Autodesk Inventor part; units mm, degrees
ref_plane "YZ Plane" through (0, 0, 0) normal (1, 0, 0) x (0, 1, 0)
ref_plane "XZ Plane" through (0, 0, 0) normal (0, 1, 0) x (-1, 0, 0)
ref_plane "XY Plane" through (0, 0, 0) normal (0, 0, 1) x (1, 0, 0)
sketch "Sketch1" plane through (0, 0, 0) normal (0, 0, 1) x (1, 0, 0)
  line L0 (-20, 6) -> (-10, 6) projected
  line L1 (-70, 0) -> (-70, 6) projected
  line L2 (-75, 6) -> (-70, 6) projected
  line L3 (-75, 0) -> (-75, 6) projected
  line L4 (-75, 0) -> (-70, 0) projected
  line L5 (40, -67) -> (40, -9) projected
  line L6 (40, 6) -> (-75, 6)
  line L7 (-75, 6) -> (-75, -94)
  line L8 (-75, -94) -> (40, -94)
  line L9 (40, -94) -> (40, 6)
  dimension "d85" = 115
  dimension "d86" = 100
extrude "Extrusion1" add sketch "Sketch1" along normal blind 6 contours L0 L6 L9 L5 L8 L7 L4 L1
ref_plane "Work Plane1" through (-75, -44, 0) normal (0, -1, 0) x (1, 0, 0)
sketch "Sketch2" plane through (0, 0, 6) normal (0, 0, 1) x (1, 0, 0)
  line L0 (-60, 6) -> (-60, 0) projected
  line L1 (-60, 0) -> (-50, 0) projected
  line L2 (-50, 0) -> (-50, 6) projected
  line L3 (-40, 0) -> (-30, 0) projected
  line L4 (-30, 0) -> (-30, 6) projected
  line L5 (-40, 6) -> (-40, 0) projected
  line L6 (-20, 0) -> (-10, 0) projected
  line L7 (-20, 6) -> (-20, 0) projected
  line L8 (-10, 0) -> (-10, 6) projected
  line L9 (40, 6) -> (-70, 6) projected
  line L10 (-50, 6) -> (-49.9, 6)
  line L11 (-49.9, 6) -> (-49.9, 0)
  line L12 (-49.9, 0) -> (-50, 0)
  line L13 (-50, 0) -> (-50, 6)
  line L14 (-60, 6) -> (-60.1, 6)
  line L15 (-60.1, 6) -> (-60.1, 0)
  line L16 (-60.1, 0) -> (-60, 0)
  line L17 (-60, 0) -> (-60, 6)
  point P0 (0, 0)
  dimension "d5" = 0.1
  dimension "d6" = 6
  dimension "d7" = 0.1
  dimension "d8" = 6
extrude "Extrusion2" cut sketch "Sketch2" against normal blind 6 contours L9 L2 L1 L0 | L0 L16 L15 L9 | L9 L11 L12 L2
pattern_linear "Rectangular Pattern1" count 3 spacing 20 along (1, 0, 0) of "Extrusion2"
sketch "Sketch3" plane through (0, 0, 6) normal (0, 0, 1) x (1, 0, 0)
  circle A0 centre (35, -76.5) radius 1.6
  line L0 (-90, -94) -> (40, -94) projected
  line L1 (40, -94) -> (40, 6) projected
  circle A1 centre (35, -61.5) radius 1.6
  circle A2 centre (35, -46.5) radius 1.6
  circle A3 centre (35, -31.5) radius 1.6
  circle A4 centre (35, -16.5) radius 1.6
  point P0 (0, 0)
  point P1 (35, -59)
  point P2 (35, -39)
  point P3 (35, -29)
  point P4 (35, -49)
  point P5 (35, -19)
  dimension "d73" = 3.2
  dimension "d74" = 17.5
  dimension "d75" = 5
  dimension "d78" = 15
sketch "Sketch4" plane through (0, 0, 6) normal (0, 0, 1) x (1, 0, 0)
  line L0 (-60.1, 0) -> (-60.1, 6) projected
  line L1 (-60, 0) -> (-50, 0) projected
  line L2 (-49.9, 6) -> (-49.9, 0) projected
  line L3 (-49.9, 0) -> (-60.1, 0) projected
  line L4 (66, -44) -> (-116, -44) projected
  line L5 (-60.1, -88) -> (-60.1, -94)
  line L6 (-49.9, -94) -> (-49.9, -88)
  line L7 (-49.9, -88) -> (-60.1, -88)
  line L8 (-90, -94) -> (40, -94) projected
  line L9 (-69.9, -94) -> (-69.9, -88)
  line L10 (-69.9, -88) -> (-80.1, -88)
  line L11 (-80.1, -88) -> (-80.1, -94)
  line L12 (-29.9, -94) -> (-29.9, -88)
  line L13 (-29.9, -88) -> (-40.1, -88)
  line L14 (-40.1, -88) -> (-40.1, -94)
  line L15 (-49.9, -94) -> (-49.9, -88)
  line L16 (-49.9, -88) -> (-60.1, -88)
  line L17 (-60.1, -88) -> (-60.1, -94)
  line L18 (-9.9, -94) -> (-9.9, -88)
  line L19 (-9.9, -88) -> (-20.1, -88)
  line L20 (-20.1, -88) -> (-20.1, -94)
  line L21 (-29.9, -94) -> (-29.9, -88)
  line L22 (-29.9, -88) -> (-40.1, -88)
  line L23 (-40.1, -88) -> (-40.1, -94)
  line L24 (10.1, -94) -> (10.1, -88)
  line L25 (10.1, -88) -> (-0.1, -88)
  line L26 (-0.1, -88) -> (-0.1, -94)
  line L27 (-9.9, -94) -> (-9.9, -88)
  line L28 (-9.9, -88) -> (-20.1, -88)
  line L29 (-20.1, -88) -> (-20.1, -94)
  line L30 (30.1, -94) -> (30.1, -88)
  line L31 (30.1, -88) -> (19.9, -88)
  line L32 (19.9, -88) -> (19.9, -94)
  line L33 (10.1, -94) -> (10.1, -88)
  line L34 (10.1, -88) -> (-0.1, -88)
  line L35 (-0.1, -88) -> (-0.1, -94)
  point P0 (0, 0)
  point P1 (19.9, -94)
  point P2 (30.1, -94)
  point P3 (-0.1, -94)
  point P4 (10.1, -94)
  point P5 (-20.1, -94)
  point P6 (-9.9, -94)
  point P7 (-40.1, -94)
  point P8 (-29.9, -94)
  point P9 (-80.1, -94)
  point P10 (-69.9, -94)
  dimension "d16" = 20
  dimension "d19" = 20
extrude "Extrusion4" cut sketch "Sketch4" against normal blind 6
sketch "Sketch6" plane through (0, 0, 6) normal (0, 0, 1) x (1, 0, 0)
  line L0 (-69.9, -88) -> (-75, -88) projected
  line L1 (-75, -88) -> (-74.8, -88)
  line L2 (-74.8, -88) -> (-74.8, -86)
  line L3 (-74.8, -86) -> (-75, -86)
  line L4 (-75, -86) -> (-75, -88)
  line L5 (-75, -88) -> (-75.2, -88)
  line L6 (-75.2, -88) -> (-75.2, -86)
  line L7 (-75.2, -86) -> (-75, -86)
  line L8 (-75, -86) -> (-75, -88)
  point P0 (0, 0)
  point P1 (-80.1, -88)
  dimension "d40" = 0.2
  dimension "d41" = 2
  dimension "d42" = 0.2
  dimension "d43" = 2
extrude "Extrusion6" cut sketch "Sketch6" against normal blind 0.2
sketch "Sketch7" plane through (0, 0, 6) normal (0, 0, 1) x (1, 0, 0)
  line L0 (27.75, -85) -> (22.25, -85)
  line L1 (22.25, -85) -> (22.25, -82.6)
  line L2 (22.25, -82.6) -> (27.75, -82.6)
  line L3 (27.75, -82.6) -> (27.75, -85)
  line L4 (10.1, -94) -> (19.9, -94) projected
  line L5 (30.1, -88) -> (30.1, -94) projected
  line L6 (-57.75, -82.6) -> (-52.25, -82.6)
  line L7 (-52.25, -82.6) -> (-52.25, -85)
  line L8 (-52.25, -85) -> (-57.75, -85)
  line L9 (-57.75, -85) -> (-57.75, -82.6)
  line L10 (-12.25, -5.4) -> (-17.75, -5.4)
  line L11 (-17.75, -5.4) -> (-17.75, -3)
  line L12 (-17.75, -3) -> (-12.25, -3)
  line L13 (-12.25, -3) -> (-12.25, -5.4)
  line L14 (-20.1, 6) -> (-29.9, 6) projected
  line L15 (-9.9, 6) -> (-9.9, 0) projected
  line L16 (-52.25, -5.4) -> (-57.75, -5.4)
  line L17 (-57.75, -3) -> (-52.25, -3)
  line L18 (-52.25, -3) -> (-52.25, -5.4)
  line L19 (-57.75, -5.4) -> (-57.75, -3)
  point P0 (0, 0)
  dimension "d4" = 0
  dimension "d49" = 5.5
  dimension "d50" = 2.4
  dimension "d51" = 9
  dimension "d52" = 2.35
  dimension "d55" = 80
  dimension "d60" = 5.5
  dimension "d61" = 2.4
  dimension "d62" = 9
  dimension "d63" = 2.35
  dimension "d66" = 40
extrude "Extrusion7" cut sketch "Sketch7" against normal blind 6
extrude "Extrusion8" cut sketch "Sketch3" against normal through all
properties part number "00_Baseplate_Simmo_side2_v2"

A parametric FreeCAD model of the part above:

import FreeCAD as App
import Part
import Sketcher
from FreeCAD import Vector
Q = App.Units.Quantity


def add_polygon(sketch, points):
    """Adds a closed chain of lines whose ends are joined by coincident constraints."""
    first, n = sketch.GeometryCount, len(points)
    for a, b in zip(points, points[1:] + points[:1]):
        sketch.addGeometry(Part.LineSegment(App.Vector(*a, 0), App.Vector(*b, 0)), False)
    for i in range(n):
        sketch.addConstraint(Sketcher.Constraint("Coincident", first + i, 2, first + (i + 1) % n, 1))

doc = App.newDocument("Part")
params = doc.addObject("Spreadsheet::Sheet", "Params")
for row, (alias, value) in enumerate([
    ("sketch1_width", "115 mm"),
    ("sketch1_height", "100 mm"),
    ("sketch1_width2", "110 mm"),
    ("sketch1_height2", "6 mm"),
    ("pad1_length", "6 mm"),
    ("sketch2_height", "6 mm"),
    ("sketch2_width", "10.2 mm"),
    ("pocket1_length", "6 mm"),
    ("linearpattern_pitch", "20 mm"),
    ("sketch3_height", "6 mm"),
    ("sketch3_width", "10.2 mm"),
    ("pocket2_length", "6 mm"),
    ("sketch4_height", "2 mm"),
    ("sketch4_width", "0.4 mm"),
    ("pocket3_length", "0.2 mm"),
    ("sketch5_width", "5.5 mm"),
    ("sketch5_height", "2.4 mm"),
    ("pocket4_length", "6 mm"),
    ("sketch6_diameter", "3.2 mm"),
], start=1):
    params.set(f"A{row}", alias)
    params.set(f"B{row}", "=" + value)
    params.setAlias(f"B{row}", alias)

body = doc.addObject("PartDesign::Body", "Body")

# Sketch on XY plane
sketch1 = body.newObject("Sketcher::SketchObject", "Sketch")
sketch1.AttachmentSupport = (doc.getObject("XY_Plane"), [""])
sketch1.MapMode = "FlatFace"
add_polygon(sketch1, [(40, 6), (-70, 6), (-70, 0), (-75, 0), (-75, -94), (40, -94)])  # lines 0-5
sketch1.addConstraint([
    Sketcher.Constraint("Horizontal", 0),
    Sketcher.Constraint("Vertical", 1),
    Sketcher.Constraint("Horizontal", 2),
    Sketcher.Constraint("Vertical", 3),
    Sketcher.Constraint("Horizontal", 4),
    Sketcher.Constraint("Vertical", 5),
    Sketcher.Constraint("PointOnObject", 1, 2, -1),
    Sketcher.Constraint("DistanceX", 4, 1, 4, 2, Q("115 mm")),
    Sketcher.Constraint("DistanceY", 5, 1, 5, 2, Q("100 mm")),
    Sketcher.Constraint("DistanceX", 0, 2, 0, 1, Q("110 mm")),
    Sketcher.Constraint("DistanceY", 1, 2, 1, 1, Q("6 mm")),
    Sketcher.Constraint("DistanceX", 0, 2, -1, 1, Q("70 mm")),
])
sketch1.setExpression("Constraints[13]", "Params.sketch1_width")
sketch1.setExpression("Constraints[14]", "Params.sketch1_height")
sketch1.setExpression("Constraints[15]", "Params.sketch1_width2")
sketch1.setExpression("Constraints[16]", "Params.sketch1_height2")
pad1 = body.newObject("PartDesign::Pad", "Pad")
pad1.Profile = sketch1
pad1.setExpression("Length", "Params.pad1_length")

# Sketch on XY plane
sketch2 = body.newObject("Sketcher::SketchObject", "Sketch001")
sketch2.AttachmentSupport = (doc.getObject("XY_Plane"), [""])
sketch2.MapMode = "FlatFace"
sketch2.AttachmentOffset = App.Placement(Vector(0, 0, 6), App.Rotation())
add_polygon(sketch2, [(-60, 6), (-60, 0), (-50, 0), (-50, 6)])  # lines 0-3
sketch2.addConstraint([
    Sketcher.Constraint("Vertical", 0),
    Sketcher.Constraint("Horizontal", 1),
    Sketcher.Constraint("Vertical", 2),
    Sketcher.Constraint("Horizontal", 3),
    Sketcher.Constraint("PointOnObject", 0, 2, -1),
    Sketcher.Constraint("DistanceY", 0, 2, 0, 1, Q("6 mm")),
    Sketcher.Constraint("DistanceX", 1, 1, 1, 2, Q("10.2 mm")),
    Sketcher.Constraint("DistanceX", 0, 2, -1, 1, Q("60.1 mm")),
])
sketch2.setExpression("Constraints[9]", "Params.sketch2_height")
sketch2.setExpression("Constraints[10]", "Params.sketch2_width")
pocket1 = body.newObject("PartDesign::Pocket", "Pocket")
pocket1.Profile = sketch2
pocket1.setExpression("Length", "Params.pocket1_length")
doc.recompute()

linearpattern = body.newObject("PartDesign::LinearPattern", "LinearPattern")
linearpattern.Originals = [pocket1]
linearpattern.Direction = (doc.getObject("X_Axis"), [""])
linearpattern.Mode = "offset"
linearpattern.setExpression("Offset", "Params.linearpattern_pitch")
linearpattern.Occurrences = 3
body.Tip = linearpattern

# Sketch on XY plane
sketch3 = body.newObject("Sketcher::SketchObject", "Sketch002")
sketch3.AttachmentSupport = (doc.getObject("XY_Plane"), [""])
sketch3.MapMode = "FlatFace"
sketch3.AttachmentOffset = App.Placement(Vector(0, 0, 6), App.Rotation())
add_polygon(sketch3, [(-50, -88), (-60, -88), (-60, -94), (-50, -94)])  # lines 0-3
add_polygon(sketch3, [(20, -88), (20, -94), (30, -94), (30, -88)])  # lines 4-7
add_polygon(sketch3, [(0, -88), (0, -94), (10, -94), (10, -88)])  # lines 8-11
add_polygon(sketch3, [(-20, -88), (-20, -94), (-10, -94), (-10, -88)])  # lines 12-15
add_polygon(sketch3, [(-40, -88), (-40, -94), (-30, -94), (-30, -88)])  # lines 16-19
add_polygon(sketch3, [(-80, -94), (-70, -94), (-70, -88), (-80, -88)])  # lines 20-23
sketch3.addConstraint([
    Sketcher.Constraint("Horizontal", 0),
    Sketcher.Constraint("Vertical", 1),
    Sketcher.Constraint("Horizontal", 2),
    Sketcher.Constraint("Vertical", 3),
    Sketcher.Constraint("Vertical", 4),
    Sketcher.Constraint("Horizontal", 5),
    Sketcher.Constraint("Vertical", 6),
    Sketcher.Constraint("Horizontal", 7),
    Sketcher.Constraint("Vertical", 8),
    Sketcher.Constraint("Horizontal", 9),
    Sketcher.Constraint("Vertical", 10),
    Sketcher.Constraint("Horizontal", 11),
    Sketcher.Constraint("Vertical", 12),
    Sketcher.Constraint("Horizontal", 13),
    Sketcher.Constraint("Vertical", 14),
    Sketcher.Constraint("Horizontal", 15),
    Sketcher.Constraint("Vertical", 16),
    Sketcher.Constraint("Horizontal", 17),
    Sketcher.Constraint("Vertical", 18),
    Sketcher.Constraint("Horizontal", 19),
    Sketcher.Constraint("Horizontal", 20),
    Sketcher.Constraint("Vertical", 21),
    Sketcher.Constraint("Horizontal", 22),
    Sketcher.Constraint("Vertical", 23),
    Sketcher.Constraint("Horizontal", 2, 2, 4, 2),
    Sketcher.Constraint("Horizontal", 3, 2, 6, 2),
    Sketcher.Constraint("Horizontal", 5, 2, 8, 2),
    Sketcher.Constraint("Horizontal", 7, 2, 10, 2),
    Sketcher.Constraint("Horizontal", 9, 2, 12, 2),
    Sketcher.Constraint("Horizontal", 11, 2, 14, 2),
    Sketcher.Constraint("Horizontal", 13, 2, 16, 2),
    Sketcher.Constraint("Horizontal", 15, 2, 18, 2),
    Sketcher.Constraint("Horizontal", 17, 2, 20, 2),
    Sketcher.Constraint("Horizontal", 19, 2, 21, 2),
    Sketcher.Constraint("Equal", 2, 5),
    Sketcher.Constraint("Equal", 7, 9),
    Sketcher.Constraint("Equal", 11, 13),
    Sketcher.Constraint("Equal", 15, 17),
    Sketcher.Constraint("Equal", 19, 20),
    Sketcher.Constraint("DistanceX", 8, 2, 4, 2, Q("20 mm")),
    Sketcher.Constraint("DistanceX", 12, 2, 8, 2, Q("20 mm")),
    Sketcher.Constraint("DistanceX", 1, 2, 16, 2, Q("20 mm")),
    Sketcher.Constraint("DistanceX", 16, 2, 12, 2, Q("20 mm")),
    Sketcher.Constraint("DistanceX", 20, 2, 2, 2, Q("20 mm")),
    Sketcher.Constraint("DistanceY", 1, 2, 1, 1, Q("6 mm")),
    Sketcher.Constraint("DistanceX", 0, 2, 0, 1, Q("10.2 mm")),
    Sketcher.Constraint("DistanceY", 0, 2, -1, 1, Q("88 mm")),
    Sketcher.Constraint("DistanceX", 0, 2, -1, 1, Q("60.1 mm")),
])
sketch3.setExpression("Constraints[68]", "Params.sketch3_height")
sketch3.setExpression("Constraints[69]", "Params.sketch3_width")
pocket2 = body.newObject("PartDesign::Pocket", "Pocket001")
pocket2.Profile = sketch3
pocket2.setExpression("Length", "Params.pocket2_length")

# Sketch on XY plane
sketch4 = body.newObject("Sketcher::SketchObject", "Sketch003")
sketch4.AttachmentSupport = (doc.getObject("XY_Plane"), [""])
sketch4.MapMode = "FlatFace"
sketch4.AttachmentOffset = App.Placement(Vector(0, 0, 6), App.Rotation())
add_polygon(sketch4, [(-74.8, -88), (-74.8, -86), (-75.2, -86), (-75.2, -88)])  # lines 0-3
sketch4.addConstraint([
    Sketcher.Constraint("Vertical", 0),
    Sketcher.Constraint("Horizontal", 1),
    Sketcher.Constraint("Vertical", 2),
    Sketcher.Constraint("Horizontal", 3),
    Sketcher.Constraint("DistanceY", 0, 1, 0, 2, Q("2 mm")),
    Sketcher.Constraint("DistanceX", 1, 2, 1, 1, Q("0.4 mm")),
    Sketcher.Constraint("DistanceY", 0, 2, -1, 1, Q("86 mm")),
    Sketcher.Constraint("DistanceX", 0, 2, -1, 1, Q("74.8 mm")),
])
sketch4.setExpression("Constraints[8]", "Params.sketch4_height")
sketch4.setExpression("Constraints[9]", "Params.sketch4_width")
pocket3 = body.newObject("PartDesign::Pocket", "Pocket002")
pocket3.Profile = sketch4
pocket3.setExpression("Length", "Params.pocket3_length")

# Sketch on XY plane
sketch5 = body.newObject("Sketcher::SketchObject", "Sketch004")
sketch5.AttachmentSupport = (doc.getObject("XY_Plane"), [""])
sketch5.MapMode = "FlatFace"
sketch5.AttachmentOffset = App.Placement(Vector(0, 0, 6), App.Rotation())
add_polygon(sketch5, [(22.2, -85), (27.8, -85), (27.8, -82.6), (22.2, -82.6)])  # lines 0-3
add_polygon(sketch5, [(-52.2, -82.6), (-57.8, -82.6), (-57.8, -85), (-52.2, -85)])  # lines 4-7
add_polygon(sketch5, [(-17.8, -5.4), (-12.2, -5.4), (-12.2, -3), (-17.8, -3)])  # lines 8-11
add_polygon(sketch5, [(-57.8, -5.4), (-52.2, -5.4), (-52.2, -3), (-57.8, -3)])  # lines 12-15
sketch5.addConstraint([
    Sketcher.Constraint("Horizontal", 0),
    Sketcher.Constraint("Vertical", 1),
    Sketcher.Constraint("Horizontal", 2),
    Sketcher.Constraint("Vertical", 3),
    Sketcher.Constraint("Horizontal", 4),
    Sketcher.Constraint("Vertical", 5),
    Sketcher.Constraint("Horizontal", 6),
    Sketcher.Constraint("Vertical", 7),
    Sketcher.Constraint("Horizontal", 8),
    Sketcher.Constraint("Vertical", 9),
    Sketcher.Constraint("Horizontal", 10),
    Sketcher.Constraint("Vertical", 11),
    Sketcher.Constraint("Horizontal", 12),
    Sketcher.Constraint("Vertical", 13),
    Sketcher.Constraint("Horizontal", 14),
    Sketcher.Constraint("Vertical", 15),
    Sketcher.Constraint("Horizontal", 2, 2, 4, 2),
    Sketcher.Constraint("Horizontal", 3, 2, 5, 2),
    Sketcher.Constraint("Horizontal", 11, 2, 12, 2),
    Sketcher.Constraint("Horizontal", 10, 2, 13, 2),
    Sketcher.Constraint("Vertical", 7, 2, 12, 2),
    Sketcher.Constraint("Vertical", 5, 2, 14, 2),
    Sketcher.Constraint("Equal", 2, 4),
    Sketcher.Constraint("Equal", 6, 8),
    Sketcher.Constraint("Equal", 7, 9),
    Sketcher.Constraint("DistanceX", 0, 1, 0, 2, Q("5.5 mm")),
    Sketcher.Constraint("DistanceY", 1, 1, 1, 2, Q("2.4 mm")),
    Sketcher.Constraint("DistanceX", 4, 2, 2, 2, Q("80 mm")),
    Sketcher.Constraint("DistanceX", 8, 2, 1, 2, Q("40 mm")),
    Sketcher.Constraint("DistanceY", 0, 2, -1, 1, Q("85 mm")),
    Sketcher.Constraint("DistanceY", 9, 2, -1, 1, Q("3 mm")),
    Sketcher.Constraint("DistanceX", -1, 1, 0, 2, Q("27.75 mm")),
])
sketch5.setExpression("Constraints[41]", "Params.sketch5_width")
sketch5.setExpression("Constraints[42]", "Params.sketch5_height")
pocket4 = body.newObject("PartDesign::Pocket", "Pocket003")
pocket4.Profile = sketch5
pocket4.setExpression("Length", "Params.pocket4_length")

# Sketch on XY plane
sketch6 = body.newObject("Sketcher::SketchObject", "Sketch005")
sketch6.AttachmentSupport = (doc.getObject("XY_Plane"), [""])
sketch6.MapMode = "FlatFace"
sketch6.AttachmentOffset = App.Placement(Vector(0, 0, 6), App.Rotation())
sketch6.addGeometry([
    Part.Circle(Vector(35, -76.5, 0), Vector(0, 0, 1), 1.6),  # 0
    Part.Circle(Vector(35, -61.5, 0), Vector(0, 0, 1), 1.6),  # 1
    Part.Circle(Vector(35, -46.5, 0), Vector(0, 0, 1), 1.6),  # 2
    Part.Circle(Vector(35, -31.5, 0), Vector(0, 0, 1), 1.6),  # 3
    Part.Circle(Vector(35, -16.5, 0), Vector(0, 0, 1), 1.6),  # 4
], False)
sketch6.addConstraint([
    Sketcher.Constraint("Equal", 0, 1),
    Sketcher.Constraint("Equal", 1, 2),
    Sketcher.Constraint("Equal", 2, 3),
    Sketcher.Constraint("Equal", 3, 4),
    Sketcher.Constraint("Vertical", 0, 3, 1, 3),
    Sketcher.Constraint("Vertical", 1, 3, 2, 3),
    Sketcher.Constraint("Vertical", 2, 3, 3, 3),
    Sketcher.Constraint("Vertical", 3, 3, 4, 3),
    Sketcher.Constraint("Diameter", 0, Q("3.2 mm")),
    Sketcher.Constraint("DistanceY", 0, 3, 1, 3, Q("15 mm")),
    Sketcher.Constraint("DistanceY", 1, 3, 2, 3, Q("15 mm")),
    Sketcher.Constraint("DistanceY", 2, 3, 3, 3, Q("15 mm")),
    Sketcher.Constraint("DistanceY", 3, 3, 4, 3, Q("15 mm")),
    Sketcher.Constraint("DistanceX", -1, 1, 0, 3, Q("35 mm")),
    Sketcher.Constraint("DistanceY", 0, 3, -1, 1, Q("76.5 mm")),
])
sketch6.setExpression("Constraints[8]", "Params.sketch6_diameter")
pocket5 = body.newObject("PartDesign::Pocket", "Pocket004")
pocket5.Profile = sketch6
pocket5.Type = "ThroughAll"

doc.recompute()
